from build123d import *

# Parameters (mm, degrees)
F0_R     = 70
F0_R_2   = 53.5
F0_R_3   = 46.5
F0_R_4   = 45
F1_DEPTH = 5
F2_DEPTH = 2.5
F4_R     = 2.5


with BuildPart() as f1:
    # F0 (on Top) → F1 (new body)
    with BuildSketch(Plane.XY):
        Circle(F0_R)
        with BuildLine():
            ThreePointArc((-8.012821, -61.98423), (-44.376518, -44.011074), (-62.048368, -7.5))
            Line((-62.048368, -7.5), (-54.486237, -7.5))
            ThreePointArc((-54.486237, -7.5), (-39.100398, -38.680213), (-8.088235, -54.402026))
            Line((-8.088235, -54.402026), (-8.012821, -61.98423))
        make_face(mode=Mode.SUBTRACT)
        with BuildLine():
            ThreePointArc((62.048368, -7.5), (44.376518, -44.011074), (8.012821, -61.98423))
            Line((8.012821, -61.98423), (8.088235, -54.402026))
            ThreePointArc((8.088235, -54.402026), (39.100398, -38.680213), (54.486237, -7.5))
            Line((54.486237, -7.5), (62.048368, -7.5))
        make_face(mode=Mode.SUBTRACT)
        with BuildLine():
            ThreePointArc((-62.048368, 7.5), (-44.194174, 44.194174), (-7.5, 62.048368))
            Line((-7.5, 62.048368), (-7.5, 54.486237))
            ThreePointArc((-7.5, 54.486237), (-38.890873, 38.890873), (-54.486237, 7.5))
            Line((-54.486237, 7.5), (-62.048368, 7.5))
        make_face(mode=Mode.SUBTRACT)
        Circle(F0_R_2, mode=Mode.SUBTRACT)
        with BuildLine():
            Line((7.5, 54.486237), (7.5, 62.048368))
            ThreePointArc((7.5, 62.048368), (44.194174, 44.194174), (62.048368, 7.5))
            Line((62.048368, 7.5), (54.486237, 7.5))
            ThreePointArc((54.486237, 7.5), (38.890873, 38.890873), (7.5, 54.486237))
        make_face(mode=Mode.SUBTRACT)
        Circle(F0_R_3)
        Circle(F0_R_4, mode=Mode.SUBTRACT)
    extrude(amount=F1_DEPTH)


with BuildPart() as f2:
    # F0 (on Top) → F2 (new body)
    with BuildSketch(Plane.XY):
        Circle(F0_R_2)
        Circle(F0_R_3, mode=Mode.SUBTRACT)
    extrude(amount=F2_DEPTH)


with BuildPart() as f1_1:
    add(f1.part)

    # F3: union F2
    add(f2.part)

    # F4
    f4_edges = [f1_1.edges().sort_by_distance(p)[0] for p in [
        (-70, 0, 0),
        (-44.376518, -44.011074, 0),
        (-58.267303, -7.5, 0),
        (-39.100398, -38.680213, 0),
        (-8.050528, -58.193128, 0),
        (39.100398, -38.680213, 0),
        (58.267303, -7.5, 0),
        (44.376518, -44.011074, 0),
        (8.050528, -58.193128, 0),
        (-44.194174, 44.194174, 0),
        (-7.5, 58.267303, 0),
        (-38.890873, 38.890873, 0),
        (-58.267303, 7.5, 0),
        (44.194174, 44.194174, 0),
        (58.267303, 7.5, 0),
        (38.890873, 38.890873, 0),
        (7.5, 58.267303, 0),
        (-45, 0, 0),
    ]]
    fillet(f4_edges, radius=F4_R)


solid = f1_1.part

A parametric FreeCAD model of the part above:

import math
import FreeCAD as App
import Part
import Sketcher


def edges_at(feature, points):
    """Names of the edges that pass closest to the given points."""
    edges = feature.Shape.Edges
    near = lambda p: min(range(len(edges)), key=lambda i: edges[i].distToShape(Part.Vertex(*p))[0])
    return sorted({f"Edge{near(p) + 1}" for p in points})

doc = App.newDocument("Part")
body = doc.addObject("PartDesign::Body", "Body")
body.AllowCompound = True

# Sketch on XY plane
sketch1 = doc.addObject("Sketcher::SketchObject", "Sketch")
body.addObject(sketch1)
sketch1.AttachmentSupport = (doc.XY_Plane, [""])
sketch1.MapMode = "FlatFace"
sketch1.addGeometry(Part.Circle(App.Vector(0, 0, 0), App.Vector(0, 0, 1), 70), False)
sketch1.addGeometry(Part.LineSegment(App.Vector(-8, -54, 0), App.Vector(-8, -62, 0)), False)
sketch1.addGeometry(Part.ArcOfCircle(Part.Circle(App.Vector(0, 0, 0), App.Vector(0, 0, 1), 63), math.radians(-173), math.radians(-97)), False)
sketch1.addGeometry(Part.LineSegment(App.Vector(-62, -8, 0), App.Vector(-54, -8, 0)), False)
sketch1.addGeometry(Part.ArcOfCircle(Part.Circle(App.Vector(0, 0, 0), App.Vector(0, 0, 1), 55), math.radians(-172), math.radians(-98)), False)
sketch1.addGeometry(Part.Circle(App.Vector(0, 0, 0), App.Vector(0, 0, 1), 54), False)
sketch1.addGeometry(Part.LineSegment(App.Vector(54, -8, 0), App.Vector(62, -8, 0)), False)
sketch1.addGeometry(Part.ArcOfCircle(Part.Circle(App.Vector(0, 0, 0), App.Vector(0, 0, 1), 63), math.radians(-83), math.radians(-7)), False)
sketch1.addGeometry(Part.LineSegment(App.Vector(8, -62, 0), App.Vector(8, -54, 0)), False)
sketch1.addGeometry(Part.ArcOfCircle(Part.Circle(App.Vector(0, 0, 0), App.Vector(0, 0, 1), 55), math.radians(-82), math.radians(-8)), False)
sketch1.addGeometry(Part.LineSegment(App.Vector(-54, 8, 0), App.Vector(-62, 8, 0)), False)
sketch1.addGeometry(Part.ArcOfCircle(Part.Circle(App.Vector(0, 0, 0), App.Vector(0, 0, 1), 62), math.radians(97), math.radians(173)), False)
sketch1.addGeometry(Part.LineSegment(App.Vector(-8, 62, 0), App.Vector(-8, 54, 0)), False)
sketch1.addGeometry(Part.ArcOfCircle(Part.Circle(App.Vector(0, 0, 0), App.Vector(0, 0, 1), 55), math.radians(98), math.radians(172)), False)
sketch1.addGeometry(Part.ArcOfCircle(Part.Circle(App.Vector(0, 0, 0), App.Vector(0, 0, 1), 55), math.radians(8), math.radians(82)), False)
sketch1.addGeometry(Part.LineSegment(App.Vector(8, 54, 0), App.Vector(8, 62, 0)), False)
sketch1.addGeometry(Part.ArcOfCircle(Part.Circle(App.Vector(0, 0, 0), App.Vector(0, 0, 1), 62), math.radians(7), math.radians(83)), False)
sketch1.addGeometry(Part.LineSegment(App.Vector(62, 8, 0), App.Vector(54, 8, 0)), False)
sketch1.addGeometry(Part.Circle(App.Vector(0, 0, 0), App.Vector(0, 0, 1), 46), False)
sketch1.addGeometry(Part.Circle(App.Vector(0, 0, 0), App.Vector(0, 0, 1), 45), False)
sketch1.addConstraint(Sketcher.Constraint("Coincident", 1, 2, 2, 2))
sketch1.addConstraint(Sketcher.Constraint("Coincident", 2, 1, 3, 1))
sketch1.addConstraint(Sketcher.Constraint("Coincident", 3, 2, 4, 1))
sketch1.addConstraint(Sketcher.Constraint("Coincident", 4, 2, 1, 1))
sketch1.addConstraint(Sketcher.Constraint("Coincident", 6, 2, 7, 2))
sketch1.addConstraint(Sketcher.Constraint("Coincident", 7, 1, 8, 1))
sketch1.addConstraint(Sketcher.Constraint("Coincident", 8, 2, 9, 1))
sketch1.addConstraint(Sketcher.Constraint("Coincident", 9, 2, 6, 1))
sketch1.addConstraint(Sketcher.Constraint("Coincident", 10, 2, 11, 2))
sketch1.addConstraint(Sketcher.Constraint("Coincident", 11, 1, 12, 1))
sketch1.addConstraint(Sketcher.Constraint("Coincident", 12, 2, 13, 1))
sketch1.addConstraint(Sketcher.Constraint("Coincident", 13, 2, 10, 1))
sketch1.addConstraint(Sketcher.Constraint("Coincident", 14, 2, 15, 1))
sketch1.addConstraint(Sketcher.Constraint("Coincident", 15, 2, 16, 2))
sketch1.addConstraint(Sketcher.Constraint("Coincident", 16, 1, 17, 1))
sketch1.addConstraint(Sketcher.Constraint("Coincident", 17, 2, 14, 1))
sketch1.addConstraint(Sketcher.Constraint("Horizontal", 3))
sketch1.addConstraint(Sketcher.Constraint("Horizontal", 6))
sketch1.addConstraint(Sketcher.Constraint("Horizontal", 10))
sketch1.addConstraint(Sketcher.Constraint("Vertical", 12))
sketch1.addConstraint(Sketcher.Constraint("Vertical", 15))
sketch1.addConstraint(Sketcher.Constraint("Horizontal", 17))
sketch1.addConstraint(Sketcher.Constraint("Coincident", 0, 3, -1, 1))
sketch1.addConstraint(Sketcher.Constraint("Coincident", 2, 3, -1, 1))
sketch1.addConstraint(Sketcher.Constraint("Coincident", 4, 3, -1, 1))
sketch1.addConstraint(Sketcher.Constraint("Coincident", 5, 3, -1, 1))
sketch1.addConstraint(Sketcher.Constraint("Coincident", 7, 3, -1, 1))
sketch1.addConstraint(Sketcher.Constraint("Coincident", 9, 3, -1, 1))
sketch1.addConstraint(Sketcher.Constraint("Coincident", 11, 3, -1, 1))
sketch1.addConstraint(Sketcher.Constraint("Coincident", 13, 3, -1, 1))
sketch1.addConstraint(Sketcher.Constraint("Coincident", 14, 3, -1, 1))
sketch1.addConstraint(Sketcher.Constraint("Coincident", 16, 3, -1, 1))
sketch1.addConstraint(Sketcher.Constraint("Coincident", 18, 3, -1, 1))
sketch1.addConstraint(Sketcher.Constraint("Coincident", 19, 3, -1, 1))
sketch1.addConstraint(Sketcher.Constraint("Equal", 2, 7))
sketch1.addConstraint(Sketcher.Constraint("Equal", 4, 9))
sketch1.addConstraint(Sketcher.Constraint("Equal", 9, 13))
sketch1.addConstraint(Sketcher.Constraint("Equal", 13, 14))
sketch1.addConstraint(Sketcher.Constraint("Equal", 11, 16))
sketch1.addConstraint(Sketcher.Constraint("Symmetric", 6, 2, 10, 2, -1, 1))
sketch1.addConstraint(Sketcher.Constraint("Horizontal", 3, 2, 6, 2))
sketch1.addConstraint(Sketcher.Constraint("Horizontal", 1, 2, 7, 1))
sketch1.addConstraint(Sketcher.Constraint("Horizontal", 4, 2, 8, 2))
sketch1.addConstraint(Sketcher.Constraint("Horizontal", 12, 2, 14, 2))
sketch1.addConstraint(Sketcher.Constraint("Horizontal", 13, 2, 16, 1))
sketch1.addConstraint(Sketcher.Constraint("Equal", 17, 12))
sketch1.addConstraint(Sketcher.Constraint("Diameter", 0, 140.0))
sketch1.addConstraint(Sketcher.Constraint("Diameter", 5, 107.0))
sketch1.addConstraint(Sketcher.Constraint("Diameter", 18, 93.0))
sketch1.addConstraint(Sketcher.Constraint("Diameter", 19, 90.0))
sketch1.addConstraint(Sketcher.Constraint("Radius", 4, 55.0))
sketch1.addConstraint(Sketcher.Constraint("Radius", 2, 62.500001))
sketch1.addConstraint(Sketcher.Constraint("DistanceY", 2, 1, 10, 2, 15.0))
sketch1.addConstraint(Sketcher.Constraint("Distance", 1, 7.582579))
sketch1.addConstraint(Sketcher.Constraint("DistanceX", 1, 2, -1, 1, 8.012821))
pad1 = doc.addObject("PartDesign::Pad", "Pad")
body.addObject(pad1)
pad1.Profile = sketch1
pad1.Length = 5
body2 = doc.addObject("PartDesign::Body", "Body001")

# Sketch on XY plane
sketch2 = doc.addObject("Sketcher::SketchObject", "Sketch001")
body2.addObject(sketch2)
sketch2.AttachmentSupport = (doc.getObject("XY_Plane001"), [""])
sketch2.MapMode = "FlatFace"
sketch2.addGeometry(Part.Circle(App.Vector(0, 0, 0), App.Vector(0, 0, 1), 54), False)
sketch2.addGeometry(Part.Circle(App.Vector(0, 0, 0), App.Vector(0, 0, 1), 46), False)
sketch2.addConstraint(Sketcher.Constraint("Coincident", 0, 3, -1, 1))
sketch2.addConstraint(Sketcher.Constraint("Coincident", 1, 3, -1, 1))
sketch2.addConstraint(Sketcher.Constraint("Diameter", 0, 107.0))
sketch2.addConstraint(Sketcher.Constraint("Diameter", 1, 93.0))
pad2 = doc.addObject("PartDesign::Pad", "Pad001")
body2.addObject(pad2)
pad2.Profile = sketch2
pad2.Length = 2.5
doc.recompute()

boolean = doc.addObject("PartDesign::Boolean", "Boolean")
body.addObject(boolean)
boolean.Type = "Fuse"
boolean.addObjects([body2])
doc.recompute()

fillet = doc.addObject("PartDesign::Fillet", "Fillet")
body.addObject(fillet)
fillet.Base = (boolean, edges_at(boolean, [
    (-70, 0, 0),
    (-44.377, -44.011, 0),
    (-58.267, -7.5, 0),
    (-39.1, -38.68, 0),
    (-8.051, -58.193, 0),
    (39.1, -38.68, 0),
    (58.267, -7.5, 0),
    (44.377, -44.011, 0),
    (8.051, -58.193, 0),
    (-44.194, 44.194, 0),
    (-7.5, 58.267, 0),
    (-38.891, 38.891, 0),
    (-58.267, 7.5, 0),
    (44.194, 44.194, 0),
    (58.267, 7.5, 0),
    (38.891, 38.891, 0),
    (7.5, 58.267, 0),
    (-45, 0, 0),
]))
fillet.Radius = 2.5

doc.recompute()
